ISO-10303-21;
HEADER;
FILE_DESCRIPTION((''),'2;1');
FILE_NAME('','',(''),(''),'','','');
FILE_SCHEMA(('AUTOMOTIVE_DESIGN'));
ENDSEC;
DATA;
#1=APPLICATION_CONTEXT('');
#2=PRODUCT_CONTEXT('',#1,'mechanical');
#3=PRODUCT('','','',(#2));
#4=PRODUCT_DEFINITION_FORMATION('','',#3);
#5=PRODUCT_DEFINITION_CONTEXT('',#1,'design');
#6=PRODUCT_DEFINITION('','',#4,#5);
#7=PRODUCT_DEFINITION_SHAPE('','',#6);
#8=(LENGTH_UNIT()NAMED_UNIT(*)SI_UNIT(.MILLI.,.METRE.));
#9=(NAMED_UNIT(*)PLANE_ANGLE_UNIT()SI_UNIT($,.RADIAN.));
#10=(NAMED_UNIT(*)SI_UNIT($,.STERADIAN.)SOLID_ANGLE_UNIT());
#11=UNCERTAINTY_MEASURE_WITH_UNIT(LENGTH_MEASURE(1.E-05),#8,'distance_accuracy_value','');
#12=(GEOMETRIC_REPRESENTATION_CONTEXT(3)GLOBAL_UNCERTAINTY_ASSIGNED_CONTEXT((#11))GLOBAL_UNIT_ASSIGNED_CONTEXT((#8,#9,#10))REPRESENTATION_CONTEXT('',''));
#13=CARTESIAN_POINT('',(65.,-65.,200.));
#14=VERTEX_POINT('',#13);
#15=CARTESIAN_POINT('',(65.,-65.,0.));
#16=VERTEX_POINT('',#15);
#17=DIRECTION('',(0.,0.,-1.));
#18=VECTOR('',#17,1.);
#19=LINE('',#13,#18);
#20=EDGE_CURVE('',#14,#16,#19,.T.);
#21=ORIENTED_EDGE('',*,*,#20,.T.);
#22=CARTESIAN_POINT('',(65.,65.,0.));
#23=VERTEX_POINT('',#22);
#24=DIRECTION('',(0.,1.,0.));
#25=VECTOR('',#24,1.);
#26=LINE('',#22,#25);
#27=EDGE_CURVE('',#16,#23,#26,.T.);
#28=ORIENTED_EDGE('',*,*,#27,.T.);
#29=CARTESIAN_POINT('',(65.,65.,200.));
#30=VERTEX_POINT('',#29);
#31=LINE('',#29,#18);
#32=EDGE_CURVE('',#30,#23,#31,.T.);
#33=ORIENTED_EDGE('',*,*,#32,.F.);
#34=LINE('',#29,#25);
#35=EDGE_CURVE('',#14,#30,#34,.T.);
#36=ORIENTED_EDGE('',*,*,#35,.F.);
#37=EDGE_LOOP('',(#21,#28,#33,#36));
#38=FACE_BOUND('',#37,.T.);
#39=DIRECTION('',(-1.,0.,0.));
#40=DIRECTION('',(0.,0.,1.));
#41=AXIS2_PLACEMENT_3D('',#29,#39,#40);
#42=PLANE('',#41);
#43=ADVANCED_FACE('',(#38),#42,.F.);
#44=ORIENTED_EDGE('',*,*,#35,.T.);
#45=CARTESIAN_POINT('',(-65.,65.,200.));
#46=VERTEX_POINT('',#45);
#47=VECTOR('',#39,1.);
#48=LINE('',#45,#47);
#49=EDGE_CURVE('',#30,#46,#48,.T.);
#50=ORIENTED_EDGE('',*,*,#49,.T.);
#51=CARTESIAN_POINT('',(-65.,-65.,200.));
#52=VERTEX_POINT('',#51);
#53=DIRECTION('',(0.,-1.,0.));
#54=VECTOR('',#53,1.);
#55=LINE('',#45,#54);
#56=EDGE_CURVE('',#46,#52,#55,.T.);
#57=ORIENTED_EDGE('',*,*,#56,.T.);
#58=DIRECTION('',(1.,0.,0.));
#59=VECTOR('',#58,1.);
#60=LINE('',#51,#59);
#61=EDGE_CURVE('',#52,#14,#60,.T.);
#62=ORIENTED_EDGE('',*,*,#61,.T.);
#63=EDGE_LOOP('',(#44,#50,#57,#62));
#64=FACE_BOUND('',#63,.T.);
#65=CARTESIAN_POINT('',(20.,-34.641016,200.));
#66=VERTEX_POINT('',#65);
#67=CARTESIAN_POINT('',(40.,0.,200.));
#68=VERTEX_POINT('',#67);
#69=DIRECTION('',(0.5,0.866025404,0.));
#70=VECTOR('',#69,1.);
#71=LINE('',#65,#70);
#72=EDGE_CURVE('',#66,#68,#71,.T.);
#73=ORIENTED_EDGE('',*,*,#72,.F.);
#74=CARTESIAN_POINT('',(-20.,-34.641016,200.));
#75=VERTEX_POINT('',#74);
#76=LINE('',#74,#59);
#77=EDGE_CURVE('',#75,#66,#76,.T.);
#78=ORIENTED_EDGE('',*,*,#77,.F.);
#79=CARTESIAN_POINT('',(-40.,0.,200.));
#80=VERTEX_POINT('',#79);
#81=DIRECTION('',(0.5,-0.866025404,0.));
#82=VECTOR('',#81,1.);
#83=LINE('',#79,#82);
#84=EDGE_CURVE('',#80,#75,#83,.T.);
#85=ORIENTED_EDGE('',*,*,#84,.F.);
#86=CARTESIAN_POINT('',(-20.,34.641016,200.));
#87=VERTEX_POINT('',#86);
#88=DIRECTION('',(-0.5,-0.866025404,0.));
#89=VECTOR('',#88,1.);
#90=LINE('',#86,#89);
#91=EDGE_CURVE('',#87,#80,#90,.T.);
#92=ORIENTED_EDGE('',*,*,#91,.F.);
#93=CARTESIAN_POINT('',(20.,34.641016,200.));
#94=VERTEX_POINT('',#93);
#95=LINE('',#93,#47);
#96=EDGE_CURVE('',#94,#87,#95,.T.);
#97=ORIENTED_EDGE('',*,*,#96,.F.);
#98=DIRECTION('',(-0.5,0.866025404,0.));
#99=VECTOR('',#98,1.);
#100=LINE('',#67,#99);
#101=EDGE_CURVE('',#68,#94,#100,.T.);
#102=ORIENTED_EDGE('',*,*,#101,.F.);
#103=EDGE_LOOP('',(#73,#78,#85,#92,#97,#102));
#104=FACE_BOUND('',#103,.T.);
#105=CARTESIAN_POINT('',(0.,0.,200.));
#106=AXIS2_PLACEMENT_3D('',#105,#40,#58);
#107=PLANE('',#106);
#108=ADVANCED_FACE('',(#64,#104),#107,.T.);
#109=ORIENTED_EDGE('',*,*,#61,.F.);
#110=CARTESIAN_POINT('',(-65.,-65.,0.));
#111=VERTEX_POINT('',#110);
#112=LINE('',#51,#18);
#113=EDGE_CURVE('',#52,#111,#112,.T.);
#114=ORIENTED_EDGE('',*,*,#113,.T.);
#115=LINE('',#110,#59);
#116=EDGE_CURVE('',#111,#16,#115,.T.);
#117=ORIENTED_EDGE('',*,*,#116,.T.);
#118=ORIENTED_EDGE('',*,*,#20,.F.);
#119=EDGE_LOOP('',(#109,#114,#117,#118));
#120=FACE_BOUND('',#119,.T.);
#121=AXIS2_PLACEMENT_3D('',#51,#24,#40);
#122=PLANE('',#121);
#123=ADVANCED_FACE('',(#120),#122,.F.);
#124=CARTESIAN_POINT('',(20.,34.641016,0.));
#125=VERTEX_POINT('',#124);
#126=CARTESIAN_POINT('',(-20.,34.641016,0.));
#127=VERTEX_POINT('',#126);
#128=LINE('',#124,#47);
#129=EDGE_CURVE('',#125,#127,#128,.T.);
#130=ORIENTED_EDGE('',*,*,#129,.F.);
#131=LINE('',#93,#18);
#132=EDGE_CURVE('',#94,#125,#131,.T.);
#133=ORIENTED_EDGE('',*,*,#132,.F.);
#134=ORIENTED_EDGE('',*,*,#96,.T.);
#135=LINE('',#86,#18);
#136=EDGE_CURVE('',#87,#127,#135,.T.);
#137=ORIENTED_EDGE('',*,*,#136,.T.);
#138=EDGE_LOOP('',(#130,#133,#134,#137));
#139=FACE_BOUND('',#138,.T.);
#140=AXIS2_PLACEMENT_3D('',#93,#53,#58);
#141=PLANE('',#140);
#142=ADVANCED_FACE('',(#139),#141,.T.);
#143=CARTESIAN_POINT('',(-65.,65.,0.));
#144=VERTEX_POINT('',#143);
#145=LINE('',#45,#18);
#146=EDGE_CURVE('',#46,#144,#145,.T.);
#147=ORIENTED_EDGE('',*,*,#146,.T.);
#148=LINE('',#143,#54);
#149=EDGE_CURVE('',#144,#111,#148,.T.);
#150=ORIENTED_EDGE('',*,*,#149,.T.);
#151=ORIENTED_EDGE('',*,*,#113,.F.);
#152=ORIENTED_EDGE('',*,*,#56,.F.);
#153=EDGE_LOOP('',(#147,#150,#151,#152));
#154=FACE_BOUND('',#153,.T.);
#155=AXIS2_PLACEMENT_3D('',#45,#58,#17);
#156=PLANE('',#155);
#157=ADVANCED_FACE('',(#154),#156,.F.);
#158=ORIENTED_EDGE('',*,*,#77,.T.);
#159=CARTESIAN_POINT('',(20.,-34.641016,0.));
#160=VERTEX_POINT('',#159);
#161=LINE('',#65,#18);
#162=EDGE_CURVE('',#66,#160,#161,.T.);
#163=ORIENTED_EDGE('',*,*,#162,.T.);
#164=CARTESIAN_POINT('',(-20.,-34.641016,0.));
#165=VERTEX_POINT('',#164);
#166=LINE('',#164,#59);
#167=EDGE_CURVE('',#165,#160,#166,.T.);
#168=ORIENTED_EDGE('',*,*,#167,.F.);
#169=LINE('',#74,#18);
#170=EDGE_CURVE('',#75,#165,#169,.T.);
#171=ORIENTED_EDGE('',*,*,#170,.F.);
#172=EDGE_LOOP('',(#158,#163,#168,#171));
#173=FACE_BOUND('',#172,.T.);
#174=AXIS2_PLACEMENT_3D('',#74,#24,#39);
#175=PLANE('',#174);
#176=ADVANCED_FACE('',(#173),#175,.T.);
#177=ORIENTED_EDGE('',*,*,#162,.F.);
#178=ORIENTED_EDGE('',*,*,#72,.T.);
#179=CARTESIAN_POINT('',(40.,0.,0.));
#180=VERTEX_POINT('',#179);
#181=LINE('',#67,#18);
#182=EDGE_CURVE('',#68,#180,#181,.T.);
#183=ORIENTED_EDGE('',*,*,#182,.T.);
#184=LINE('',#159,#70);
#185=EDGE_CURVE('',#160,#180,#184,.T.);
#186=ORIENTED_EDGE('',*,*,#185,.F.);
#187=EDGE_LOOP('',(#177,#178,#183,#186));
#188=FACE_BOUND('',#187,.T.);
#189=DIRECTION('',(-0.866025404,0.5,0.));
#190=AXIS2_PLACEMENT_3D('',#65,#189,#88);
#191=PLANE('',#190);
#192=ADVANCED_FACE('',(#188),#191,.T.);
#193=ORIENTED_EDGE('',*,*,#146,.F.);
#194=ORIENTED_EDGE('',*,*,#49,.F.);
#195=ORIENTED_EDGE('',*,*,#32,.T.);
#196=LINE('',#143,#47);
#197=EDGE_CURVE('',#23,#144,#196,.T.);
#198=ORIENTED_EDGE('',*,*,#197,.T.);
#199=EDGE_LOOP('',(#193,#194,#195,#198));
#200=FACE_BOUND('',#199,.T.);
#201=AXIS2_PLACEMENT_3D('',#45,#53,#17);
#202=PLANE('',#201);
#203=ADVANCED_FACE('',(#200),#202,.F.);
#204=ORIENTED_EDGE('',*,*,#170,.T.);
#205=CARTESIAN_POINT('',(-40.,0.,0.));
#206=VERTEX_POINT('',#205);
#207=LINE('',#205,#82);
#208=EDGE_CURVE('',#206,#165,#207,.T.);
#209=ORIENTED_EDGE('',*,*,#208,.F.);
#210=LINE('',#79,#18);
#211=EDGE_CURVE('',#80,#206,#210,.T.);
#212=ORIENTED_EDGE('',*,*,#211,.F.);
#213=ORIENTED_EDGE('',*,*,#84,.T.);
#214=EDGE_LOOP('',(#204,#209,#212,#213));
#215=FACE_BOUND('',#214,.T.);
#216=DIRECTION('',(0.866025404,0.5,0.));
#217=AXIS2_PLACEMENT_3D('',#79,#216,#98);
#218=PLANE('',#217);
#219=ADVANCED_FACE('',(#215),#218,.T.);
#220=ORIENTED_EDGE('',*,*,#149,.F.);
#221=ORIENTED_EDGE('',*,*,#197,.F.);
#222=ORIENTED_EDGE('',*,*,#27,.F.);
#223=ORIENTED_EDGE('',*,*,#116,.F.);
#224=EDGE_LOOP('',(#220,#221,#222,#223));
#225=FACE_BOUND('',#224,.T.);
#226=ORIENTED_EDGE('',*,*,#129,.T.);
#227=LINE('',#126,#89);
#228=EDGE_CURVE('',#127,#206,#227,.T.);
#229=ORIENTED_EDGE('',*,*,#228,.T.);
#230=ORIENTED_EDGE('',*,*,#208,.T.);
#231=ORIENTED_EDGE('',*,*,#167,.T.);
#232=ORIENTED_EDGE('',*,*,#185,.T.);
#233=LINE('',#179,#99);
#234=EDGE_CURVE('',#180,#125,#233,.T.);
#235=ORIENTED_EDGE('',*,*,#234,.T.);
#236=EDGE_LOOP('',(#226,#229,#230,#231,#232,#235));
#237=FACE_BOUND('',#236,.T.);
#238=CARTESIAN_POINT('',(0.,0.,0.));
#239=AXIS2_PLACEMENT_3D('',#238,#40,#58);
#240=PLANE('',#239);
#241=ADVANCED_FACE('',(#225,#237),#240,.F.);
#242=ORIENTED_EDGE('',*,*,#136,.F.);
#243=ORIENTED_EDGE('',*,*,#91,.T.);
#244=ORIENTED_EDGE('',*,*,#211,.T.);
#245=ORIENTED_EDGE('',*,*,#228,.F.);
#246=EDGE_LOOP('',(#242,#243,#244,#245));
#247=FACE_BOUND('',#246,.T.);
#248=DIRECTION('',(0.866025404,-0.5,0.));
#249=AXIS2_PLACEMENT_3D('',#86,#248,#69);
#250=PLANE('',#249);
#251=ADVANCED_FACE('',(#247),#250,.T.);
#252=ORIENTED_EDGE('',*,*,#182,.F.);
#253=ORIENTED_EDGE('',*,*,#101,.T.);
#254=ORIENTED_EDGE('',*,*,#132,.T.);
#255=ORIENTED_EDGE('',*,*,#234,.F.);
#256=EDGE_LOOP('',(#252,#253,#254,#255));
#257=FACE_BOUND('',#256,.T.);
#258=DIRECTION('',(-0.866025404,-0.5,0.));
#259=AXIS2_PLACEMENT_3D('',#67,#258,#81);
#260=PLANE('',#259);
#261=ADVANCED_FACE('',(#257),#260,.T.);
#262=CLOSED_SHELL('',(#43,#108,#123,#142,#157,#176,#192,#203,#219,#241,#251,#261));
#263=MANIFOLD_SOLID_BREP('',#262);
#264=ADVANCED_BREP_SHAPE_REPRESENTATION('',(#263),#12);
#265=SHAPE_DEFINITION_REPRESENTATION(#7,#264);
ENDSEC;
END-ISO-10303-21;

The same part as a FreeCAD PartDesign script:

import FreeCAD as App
import Part
import Sketcher
from FreeCAD import Vector
Q = App.Units.Quantity


def add_polygon(sketch, points):
    """Adds a closed chain of lines whose ends are joined by coincident constraints."""
    first, n = sketch.GeometryCount, len(points)
    for a, b in zip(points, points[1:] + points[:1]):
        sketch.addGeometry(Part.LineSegment(App.Vector(*a, 0), App.Vector(*b, 0)), False)
    for i in range(n):
        sketch.addConstraint(Sketcher.Constraint("Coincident", first + i, 2, first + (i + 1) % n, 1))

doc = App.newDocument("Part")
params = doc.addObject("Spreadsheet::Sheet", "Params")
for row, (alias, value) in enumerate([
    ("sketch1_width", "130 mm"),
    ("sketch1_width2", "40 mm"),
    ("sketch1_length", "40 mm"),
    ("pad1_length", "200 mm"),
], start=1):
    params.set(f"A{row}", alias)
    params.set(f"B{row}", "=" + value)
    params.setAlias(f"B{row}", alias)

body = doc.addObject("PartDesign::Body", "Body")

sketch1 = body.newObject("Sketcher::SketchObject", "Sketch")
sketch1.AttachmentSupport = (doc.getObject("XY_Plane"), [""])
sketch1.MapMode = "FlatFace"
add_polygon(sketch1, [(-65, 65), (-65, -65), (65, -65), (65, 65)])
add_polygon(sketch1, [(-20, 35), (20, 35), (40, 0), (20, -35), (-20, -35), (-40, 0)])
sketch1.addConstraint(Sketcher.Constraint("Vertical", 0))
sketch1.addConstraint(Sketcher.Constraint("Horizontal", 1))
sketch1.addConstraint(Sketcher.Constraint("Vertical", 2))
sketch1.addConstraint(Sketcher.Constraint("Horizontal", 3))
sketch1.addConstraint(Sketcher.Constraint("Horizontal", 4))
sketch1.addConstraint(Sketcher.Constraint("Horizontal", 7))
sketch1.addConstraint(Sketcher.Constraint("Symmetric", 0, 2, 2, 2, -1, 1))
sketch1.addConstraint(Sketcher.Constraint("Symmetric", 4, 2, 7, 2, -1, 1))
sketch1.addConstraint(Sketcher.Constraint("Symmetric", 5, 2, 8, 2, -1, 1))
sketch1.addConstraint(Sketcher.Constraint("PointOnObject", 5, 2, -1))
sketch1.addConstraint(Sketcher.Constraint("Parallel", 6, 9))
sketch1.addConstraint(Sketcher.Constraint("Vertical", 4, 2, 6, 2))
sketch1.addConstraint(Sketcher.Constraint("Equal", 3, 0))
sketch1.addConstraint(Sketcher.Constraint("DistanceX", 1, 1, 1, 2, 130.0))
sketch1.addConstraint(Sketcher.Constraint("DistanceX", 4, 1, 4, 2, 40.0))
sketch1.addConstraint(Sketcher.Constraint("Angle", 5, Q("-60 deg")))
sketch1.addConstraint(Sketcher.Constraint("Distance", 5, 40.0))
sketch1.setExpression("Constraints[23]", "Params.sketch1_width")
sketch1.setExpression("Constraints[24]", "Params.sketch1_width2")
sketch1.setExpression("Constraints[26]", "Params.sketch1_length")
pad1 = body.newObject("PartDesign::Pad", "Pad")
pad1.Profile = sketch1
pad1.setExpression("Length", "Params.pad1_length")

doc.recompute()
